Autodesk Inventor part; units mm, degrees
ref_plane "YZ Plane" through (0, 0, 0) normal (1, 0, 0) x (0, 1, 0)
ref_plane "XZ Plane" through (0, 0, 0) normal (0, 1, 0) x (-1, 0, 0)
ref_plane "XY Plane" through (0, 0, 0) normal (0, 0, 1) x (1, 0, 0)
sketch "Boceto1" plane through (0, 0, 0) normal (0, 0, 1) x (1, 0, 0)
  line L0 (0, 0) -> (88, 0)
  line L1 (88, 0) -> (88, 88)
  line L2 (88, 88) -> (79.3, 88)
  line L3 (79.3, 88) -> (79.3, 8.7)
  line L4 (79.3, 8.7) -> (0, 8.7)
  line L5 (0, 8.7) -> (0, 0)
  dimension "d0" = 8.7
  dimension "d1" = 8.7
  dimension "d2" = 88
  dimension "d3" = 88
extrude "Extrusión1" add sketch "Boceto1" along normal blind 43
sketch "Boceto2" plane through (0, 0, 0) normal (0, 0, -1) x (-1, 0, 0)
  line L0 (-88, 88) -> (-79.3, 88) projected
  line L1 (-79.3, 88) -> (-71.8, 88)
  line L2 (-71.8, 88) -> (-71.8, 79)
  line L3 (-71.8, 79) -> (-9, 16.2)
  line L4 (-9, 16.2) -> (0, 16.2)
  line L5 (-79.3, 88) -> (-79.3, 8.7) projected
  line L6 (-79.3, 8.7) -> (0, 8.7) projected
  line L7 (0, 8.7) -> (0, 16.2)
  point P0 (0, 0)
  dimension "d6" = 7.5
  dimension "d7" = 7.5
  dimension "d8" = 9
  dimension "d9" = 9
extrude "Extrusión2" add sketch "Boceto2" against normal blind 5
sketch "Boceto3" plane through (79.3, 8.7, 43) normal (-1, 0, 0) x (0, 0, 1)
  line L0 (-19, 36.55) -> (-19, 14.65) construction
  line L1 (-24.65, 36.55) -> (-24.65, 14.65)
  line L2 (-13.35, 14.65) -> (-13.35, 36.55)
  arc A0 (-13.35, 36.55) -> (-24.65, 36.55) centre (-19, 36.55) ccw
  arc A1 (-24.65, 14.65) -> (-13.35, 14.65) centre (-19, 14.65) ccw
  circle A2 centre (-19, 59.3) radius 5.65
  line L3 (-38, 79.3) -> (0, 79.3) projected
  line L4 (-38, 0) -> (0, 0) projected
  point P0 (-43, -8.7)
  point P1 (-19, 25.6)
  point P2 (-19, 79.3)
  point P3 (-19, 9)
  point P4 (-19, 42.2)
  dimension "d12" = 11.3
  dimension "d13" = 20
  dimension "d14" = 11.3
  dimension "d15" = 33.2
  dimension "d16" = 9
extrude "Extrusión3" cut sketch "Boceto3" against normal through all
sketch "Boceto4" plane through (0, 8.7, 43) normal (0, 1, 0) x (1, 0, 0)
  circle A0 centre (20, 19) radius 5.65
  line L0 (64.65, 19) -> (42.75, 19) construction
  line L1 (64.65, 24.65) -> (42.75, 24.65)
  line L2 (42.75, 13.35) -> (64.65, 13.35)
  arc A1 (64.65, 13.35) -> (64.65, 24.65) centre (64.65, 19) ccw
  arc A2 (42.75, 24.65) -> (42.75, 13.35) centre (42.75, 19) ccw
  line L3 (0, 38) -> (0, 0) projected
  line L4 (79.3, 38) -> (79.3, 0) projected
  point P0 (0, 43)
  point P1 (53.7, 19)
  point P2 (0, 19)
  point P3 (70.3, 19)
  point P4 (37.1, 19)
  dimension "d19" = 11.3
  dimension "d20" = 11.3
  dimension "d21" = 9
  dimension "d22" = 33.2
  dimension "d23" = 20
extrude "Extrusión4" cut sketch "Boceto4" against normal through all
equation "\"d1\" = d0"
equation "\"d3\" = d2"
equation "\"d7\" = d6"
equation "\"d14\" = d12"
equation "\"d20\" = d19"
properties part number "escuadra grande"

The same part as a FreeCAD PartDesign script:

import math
import FreeCAD as App
import Part
import Sketcher

V = App.Vector
Q = App.Units.Quantity


def add_polygon(sketch, points):
    """Adds a closed chain of lines whose ends are joined by coincident constraints."""
    first, n = sketch.GeometryCount, len(points)
    for a, b in zip(points, points[1:] + points[:1]):
        sketch.addGeometry(Part.LineSegment(App.Vector(*a, 0), App.Vector(*b, 0)), False)
    for i in range(n):
        sketch.addConstraint(Sketcher.Constraint("Coincident", first + i, 2, first + (i + 1) % n, 1))

doc = App.newDocument("Part")
body = doc.addObject("PartDesign::Body", "Body")

# Sketch on XY plane
sketch1 = body.newObject("Sketcher::SketchObject", "Sketch")
sketch1.AttachmentSupport = (doc.getObject("XY_Plane"), [""])
sketch1.MapMode = "FlatFace"
add_polygon(sketch1, [(0, 9), (0, 0), (88, 0), (88, 88), (79, 88), (79, 9)])  # lines 0-5
sketch1.addConstraint([
    Sketcher.Constraint("Vertical", 0),
    Sketcher.Constraint("Horizontal", 1),
    Sketcher.Constraint("Vertical", 2),
    Sketcher.Constraint("Horizontal", 3),
    Sketcher.Constraint("Vertical", 4),
    Sketcher.Constraint("Horizontal", 5),
    Sketcher.Constraint("Coincident", 0, 2, -1, 1),
    Sketcher.Constraint("Equal", 3, 0),
    Sketcher.Constraint("Equal", 1, 2),
    Sketcher.Constraint("DistanceX", 1, 1, 1, 2, Q("88 mm")),
    Sketcher.Constraint("DistanceX", 3, 2, 3, 1, Q("8.7 mm")),
])
pad1 = body.newObject("PartDesign::Pad", "Pad")
pad1.Profile = sketch1
pad1.Length = 43

# Sketch on XY plane
sketch2 = body.newObject("Sketcher::SketchObject", "Sketch001")
sketch2.AttachmentSupport = (doc.getObject("XY_Plane"), [""])
sketch2.MapMode = "FlatFace"
add_polygon(sketch2, [(72, 88), (79, 88), (79, 9), (0, 9), (0, 16), (9, 16), (72, 79)])  # lines 0-6
sketch2.addConstraint([
    Sketcher.Constraint("Horizontal", 0),
    Sketcher.Constraint("Vertical", 1),
    Sketcher.Constraint("Horizontal", 2),
    Sketcher.Constraint("Vertical", 3),
    Sketcher.Constraint("Horizontal", 4),
    Sketcher.Constraint("Vertical", 6),
    Sketcher.Constraint("PointOnObject", 2, 2, -2),
    Sketcher.Constraint("Equal", 2, 1),
    Sketcher.Constraint("Equal", 0, 3),
    Sketcher.Constraint("Equal", 4, 6),
    Sketcher.Constraint("DistanceX", 4, 1, 4, 2, Q("9 mm")),
    Sketcher.Constraint("DistanceX", 0, 1, 0, 2, Q("7.5 mm")),
    Sketcher.Constraint("DistanceX", 2, 2, 2, 1, Q("79.3 mm")),
    Sketcher.Constraint("DistanceY", -1, 1, 0, 2, Q("88 mm")),
])
pad2 = body.newObject("PartDesign::Pad", "Pad001")
pad2.Profile = sketch2
pad2.Length = 5

# Sketch on YZ plane
sketch3 = body.newObject("Sketcher::SketchObject", "Sketch002")
sketch3.AttachmentSupport = (doc.getObject("YZ_Plane"), [""])
sketch3.MapMode = "FlatFace"
sketch3.AttachmentOffset = App.Placement(V(0, 0, 79.3), App.Rotation())
sketch3.addGeometry([
    Part.ArcOfCircle(Part.Circle(V(45, 24, 0), V(0, 0, 1), 6), math.radians(-90), math.radians(90)),  # 0
    Part.LineSegment(V(45, 18, 0), V(23, 18, 0)),  # 1
    Part.ArcOfCircle(Part.Circle(V(23, 24, 0), V(0, 0, 1), 6), math.radians(90), math.radians(270)),  # 2
    Part.LineSegment(V(23, 30, 0), V(45, 30, 0)),  # 3
    Part.Circle(V(68, 24, 0), V(0, 0, 1), 6),  # 4
], False)
sketch3.addConstraint([
    Sketcher.Constraint("Tangent", 0, 1, 1, 1),
    Sketcher.Constraint("Tangent", 1, 2, 2, 2),
    Sketcher.Constraint("Tangent", 2, 1, 3, 1),
    Sketcher.Constraint("Tangent", 3, 2, 0, 2),
    Sketcher.Constraint("Horizontal", 1),
    Sketcher.Constraint("Horizontal", 3),
    Sketcher.Constraint("Equal", 2, 4),
    Sketcher.Constraint("Horizontal", 2, 3, 4, 3),
    Sketcher.Constraint("Diameter", 4, Q("11.3 mm")),
    Sketcher.Constraint("DistanceX", 1, 2, 1, 1, Q("21.9 mm")),
    Sketcher.Constraint("DistanceY", -1, 1, 0, 3, Q("24 mm")),
    Sketcher.Constraint("DistanceX", -1, 1, 4, 3, Q("68 mm")),
    Sketcher.Constraint("DistanceX", -1, 1, 0, 3, Q("45.25 mm")),
])
pocket1 = body.newObject("PartDesign::Pocket", "Pocket")
pocket1.Profile = sketch3
pocket1.Type = "ThroughAll"
pocket1.Reversed = True

# Sketch on XZ plane
sketch4 = body.newObject("Sketcher::SketchObject", "Sketch003")
sketch4.AttachmentSupport = (doc.getObject("XZ_Plane"), [""])
sketch4.MapMode = "FlatFace"
sketch4.AttachmentOffset = App.Placement(V(0, 0, -8.7), App.Rotation())
sketch4.addGeometry([
    Part.Circle(V(20, 24, 0), V(0, 0, 1), 6),  # 0
    Part.ArcOfCircle(Part.Circle(V(65, 24, 0), V(0, 0, 1), 6), math.radians(-90), math.radians(90)),  # 1
    Part.LineSegment(V(65, 18, 0), V(43, 18, 0)),  # 2
    Part.ArcOfCircle(Part.Circle(V(43, 24, 0), V(0, 0, 1), 6), math.radians(90), math.radians(270)),  # 3
    Part.LineSegment(V(43, 30, 0), V(65, 30, 0)),  # 4
], False)
sketch4.addConstraint([
    Sketcher.Constraint("Tangent", 1, 1, 2, 1),
    Sketcher.Constraint("Tangent", 2, 2, 3, 2),
    Sketcher.Constraint("Tangent", 3, 1, 4, 1),
    Sketcher.Constraint("Tangent", 4, 2, 1, 2),
    Sketcher.Constraint("Horizontal", 2),
    Sketcher.Constraint("Horizontal", 4),
    Sketcher.Constraint("Equal", 0, 1),
    Sketcher.Constraint("Horizontal", 0, 3, 1, 3),
    Sketcher.Constraint("Diameter", 0, Q("11.3 mm")),
    Sketcher.Constraint("DistanceX", -1, 1, 0, 3, Q("20 mm")),
    Sketcher.Constraint("DistanceX", 2, 2, 2, 1, Q("21.9 mm")),
    Sketcher.Constraint("DistanceY", -1, 1, 0, 3, Q("24 mm")),
    Sketcher.Constraint("DistanceX", -1, 1, 1, 3, Q("64.65 mm")),
])
pocket2 = body.newObject("PartDesign::Pocket", "Pocket001")
pocket2.Profile = sketch4
pocket2.Type = "ThroughAll"
pocket2.Reversed = True

doc.recompute()
